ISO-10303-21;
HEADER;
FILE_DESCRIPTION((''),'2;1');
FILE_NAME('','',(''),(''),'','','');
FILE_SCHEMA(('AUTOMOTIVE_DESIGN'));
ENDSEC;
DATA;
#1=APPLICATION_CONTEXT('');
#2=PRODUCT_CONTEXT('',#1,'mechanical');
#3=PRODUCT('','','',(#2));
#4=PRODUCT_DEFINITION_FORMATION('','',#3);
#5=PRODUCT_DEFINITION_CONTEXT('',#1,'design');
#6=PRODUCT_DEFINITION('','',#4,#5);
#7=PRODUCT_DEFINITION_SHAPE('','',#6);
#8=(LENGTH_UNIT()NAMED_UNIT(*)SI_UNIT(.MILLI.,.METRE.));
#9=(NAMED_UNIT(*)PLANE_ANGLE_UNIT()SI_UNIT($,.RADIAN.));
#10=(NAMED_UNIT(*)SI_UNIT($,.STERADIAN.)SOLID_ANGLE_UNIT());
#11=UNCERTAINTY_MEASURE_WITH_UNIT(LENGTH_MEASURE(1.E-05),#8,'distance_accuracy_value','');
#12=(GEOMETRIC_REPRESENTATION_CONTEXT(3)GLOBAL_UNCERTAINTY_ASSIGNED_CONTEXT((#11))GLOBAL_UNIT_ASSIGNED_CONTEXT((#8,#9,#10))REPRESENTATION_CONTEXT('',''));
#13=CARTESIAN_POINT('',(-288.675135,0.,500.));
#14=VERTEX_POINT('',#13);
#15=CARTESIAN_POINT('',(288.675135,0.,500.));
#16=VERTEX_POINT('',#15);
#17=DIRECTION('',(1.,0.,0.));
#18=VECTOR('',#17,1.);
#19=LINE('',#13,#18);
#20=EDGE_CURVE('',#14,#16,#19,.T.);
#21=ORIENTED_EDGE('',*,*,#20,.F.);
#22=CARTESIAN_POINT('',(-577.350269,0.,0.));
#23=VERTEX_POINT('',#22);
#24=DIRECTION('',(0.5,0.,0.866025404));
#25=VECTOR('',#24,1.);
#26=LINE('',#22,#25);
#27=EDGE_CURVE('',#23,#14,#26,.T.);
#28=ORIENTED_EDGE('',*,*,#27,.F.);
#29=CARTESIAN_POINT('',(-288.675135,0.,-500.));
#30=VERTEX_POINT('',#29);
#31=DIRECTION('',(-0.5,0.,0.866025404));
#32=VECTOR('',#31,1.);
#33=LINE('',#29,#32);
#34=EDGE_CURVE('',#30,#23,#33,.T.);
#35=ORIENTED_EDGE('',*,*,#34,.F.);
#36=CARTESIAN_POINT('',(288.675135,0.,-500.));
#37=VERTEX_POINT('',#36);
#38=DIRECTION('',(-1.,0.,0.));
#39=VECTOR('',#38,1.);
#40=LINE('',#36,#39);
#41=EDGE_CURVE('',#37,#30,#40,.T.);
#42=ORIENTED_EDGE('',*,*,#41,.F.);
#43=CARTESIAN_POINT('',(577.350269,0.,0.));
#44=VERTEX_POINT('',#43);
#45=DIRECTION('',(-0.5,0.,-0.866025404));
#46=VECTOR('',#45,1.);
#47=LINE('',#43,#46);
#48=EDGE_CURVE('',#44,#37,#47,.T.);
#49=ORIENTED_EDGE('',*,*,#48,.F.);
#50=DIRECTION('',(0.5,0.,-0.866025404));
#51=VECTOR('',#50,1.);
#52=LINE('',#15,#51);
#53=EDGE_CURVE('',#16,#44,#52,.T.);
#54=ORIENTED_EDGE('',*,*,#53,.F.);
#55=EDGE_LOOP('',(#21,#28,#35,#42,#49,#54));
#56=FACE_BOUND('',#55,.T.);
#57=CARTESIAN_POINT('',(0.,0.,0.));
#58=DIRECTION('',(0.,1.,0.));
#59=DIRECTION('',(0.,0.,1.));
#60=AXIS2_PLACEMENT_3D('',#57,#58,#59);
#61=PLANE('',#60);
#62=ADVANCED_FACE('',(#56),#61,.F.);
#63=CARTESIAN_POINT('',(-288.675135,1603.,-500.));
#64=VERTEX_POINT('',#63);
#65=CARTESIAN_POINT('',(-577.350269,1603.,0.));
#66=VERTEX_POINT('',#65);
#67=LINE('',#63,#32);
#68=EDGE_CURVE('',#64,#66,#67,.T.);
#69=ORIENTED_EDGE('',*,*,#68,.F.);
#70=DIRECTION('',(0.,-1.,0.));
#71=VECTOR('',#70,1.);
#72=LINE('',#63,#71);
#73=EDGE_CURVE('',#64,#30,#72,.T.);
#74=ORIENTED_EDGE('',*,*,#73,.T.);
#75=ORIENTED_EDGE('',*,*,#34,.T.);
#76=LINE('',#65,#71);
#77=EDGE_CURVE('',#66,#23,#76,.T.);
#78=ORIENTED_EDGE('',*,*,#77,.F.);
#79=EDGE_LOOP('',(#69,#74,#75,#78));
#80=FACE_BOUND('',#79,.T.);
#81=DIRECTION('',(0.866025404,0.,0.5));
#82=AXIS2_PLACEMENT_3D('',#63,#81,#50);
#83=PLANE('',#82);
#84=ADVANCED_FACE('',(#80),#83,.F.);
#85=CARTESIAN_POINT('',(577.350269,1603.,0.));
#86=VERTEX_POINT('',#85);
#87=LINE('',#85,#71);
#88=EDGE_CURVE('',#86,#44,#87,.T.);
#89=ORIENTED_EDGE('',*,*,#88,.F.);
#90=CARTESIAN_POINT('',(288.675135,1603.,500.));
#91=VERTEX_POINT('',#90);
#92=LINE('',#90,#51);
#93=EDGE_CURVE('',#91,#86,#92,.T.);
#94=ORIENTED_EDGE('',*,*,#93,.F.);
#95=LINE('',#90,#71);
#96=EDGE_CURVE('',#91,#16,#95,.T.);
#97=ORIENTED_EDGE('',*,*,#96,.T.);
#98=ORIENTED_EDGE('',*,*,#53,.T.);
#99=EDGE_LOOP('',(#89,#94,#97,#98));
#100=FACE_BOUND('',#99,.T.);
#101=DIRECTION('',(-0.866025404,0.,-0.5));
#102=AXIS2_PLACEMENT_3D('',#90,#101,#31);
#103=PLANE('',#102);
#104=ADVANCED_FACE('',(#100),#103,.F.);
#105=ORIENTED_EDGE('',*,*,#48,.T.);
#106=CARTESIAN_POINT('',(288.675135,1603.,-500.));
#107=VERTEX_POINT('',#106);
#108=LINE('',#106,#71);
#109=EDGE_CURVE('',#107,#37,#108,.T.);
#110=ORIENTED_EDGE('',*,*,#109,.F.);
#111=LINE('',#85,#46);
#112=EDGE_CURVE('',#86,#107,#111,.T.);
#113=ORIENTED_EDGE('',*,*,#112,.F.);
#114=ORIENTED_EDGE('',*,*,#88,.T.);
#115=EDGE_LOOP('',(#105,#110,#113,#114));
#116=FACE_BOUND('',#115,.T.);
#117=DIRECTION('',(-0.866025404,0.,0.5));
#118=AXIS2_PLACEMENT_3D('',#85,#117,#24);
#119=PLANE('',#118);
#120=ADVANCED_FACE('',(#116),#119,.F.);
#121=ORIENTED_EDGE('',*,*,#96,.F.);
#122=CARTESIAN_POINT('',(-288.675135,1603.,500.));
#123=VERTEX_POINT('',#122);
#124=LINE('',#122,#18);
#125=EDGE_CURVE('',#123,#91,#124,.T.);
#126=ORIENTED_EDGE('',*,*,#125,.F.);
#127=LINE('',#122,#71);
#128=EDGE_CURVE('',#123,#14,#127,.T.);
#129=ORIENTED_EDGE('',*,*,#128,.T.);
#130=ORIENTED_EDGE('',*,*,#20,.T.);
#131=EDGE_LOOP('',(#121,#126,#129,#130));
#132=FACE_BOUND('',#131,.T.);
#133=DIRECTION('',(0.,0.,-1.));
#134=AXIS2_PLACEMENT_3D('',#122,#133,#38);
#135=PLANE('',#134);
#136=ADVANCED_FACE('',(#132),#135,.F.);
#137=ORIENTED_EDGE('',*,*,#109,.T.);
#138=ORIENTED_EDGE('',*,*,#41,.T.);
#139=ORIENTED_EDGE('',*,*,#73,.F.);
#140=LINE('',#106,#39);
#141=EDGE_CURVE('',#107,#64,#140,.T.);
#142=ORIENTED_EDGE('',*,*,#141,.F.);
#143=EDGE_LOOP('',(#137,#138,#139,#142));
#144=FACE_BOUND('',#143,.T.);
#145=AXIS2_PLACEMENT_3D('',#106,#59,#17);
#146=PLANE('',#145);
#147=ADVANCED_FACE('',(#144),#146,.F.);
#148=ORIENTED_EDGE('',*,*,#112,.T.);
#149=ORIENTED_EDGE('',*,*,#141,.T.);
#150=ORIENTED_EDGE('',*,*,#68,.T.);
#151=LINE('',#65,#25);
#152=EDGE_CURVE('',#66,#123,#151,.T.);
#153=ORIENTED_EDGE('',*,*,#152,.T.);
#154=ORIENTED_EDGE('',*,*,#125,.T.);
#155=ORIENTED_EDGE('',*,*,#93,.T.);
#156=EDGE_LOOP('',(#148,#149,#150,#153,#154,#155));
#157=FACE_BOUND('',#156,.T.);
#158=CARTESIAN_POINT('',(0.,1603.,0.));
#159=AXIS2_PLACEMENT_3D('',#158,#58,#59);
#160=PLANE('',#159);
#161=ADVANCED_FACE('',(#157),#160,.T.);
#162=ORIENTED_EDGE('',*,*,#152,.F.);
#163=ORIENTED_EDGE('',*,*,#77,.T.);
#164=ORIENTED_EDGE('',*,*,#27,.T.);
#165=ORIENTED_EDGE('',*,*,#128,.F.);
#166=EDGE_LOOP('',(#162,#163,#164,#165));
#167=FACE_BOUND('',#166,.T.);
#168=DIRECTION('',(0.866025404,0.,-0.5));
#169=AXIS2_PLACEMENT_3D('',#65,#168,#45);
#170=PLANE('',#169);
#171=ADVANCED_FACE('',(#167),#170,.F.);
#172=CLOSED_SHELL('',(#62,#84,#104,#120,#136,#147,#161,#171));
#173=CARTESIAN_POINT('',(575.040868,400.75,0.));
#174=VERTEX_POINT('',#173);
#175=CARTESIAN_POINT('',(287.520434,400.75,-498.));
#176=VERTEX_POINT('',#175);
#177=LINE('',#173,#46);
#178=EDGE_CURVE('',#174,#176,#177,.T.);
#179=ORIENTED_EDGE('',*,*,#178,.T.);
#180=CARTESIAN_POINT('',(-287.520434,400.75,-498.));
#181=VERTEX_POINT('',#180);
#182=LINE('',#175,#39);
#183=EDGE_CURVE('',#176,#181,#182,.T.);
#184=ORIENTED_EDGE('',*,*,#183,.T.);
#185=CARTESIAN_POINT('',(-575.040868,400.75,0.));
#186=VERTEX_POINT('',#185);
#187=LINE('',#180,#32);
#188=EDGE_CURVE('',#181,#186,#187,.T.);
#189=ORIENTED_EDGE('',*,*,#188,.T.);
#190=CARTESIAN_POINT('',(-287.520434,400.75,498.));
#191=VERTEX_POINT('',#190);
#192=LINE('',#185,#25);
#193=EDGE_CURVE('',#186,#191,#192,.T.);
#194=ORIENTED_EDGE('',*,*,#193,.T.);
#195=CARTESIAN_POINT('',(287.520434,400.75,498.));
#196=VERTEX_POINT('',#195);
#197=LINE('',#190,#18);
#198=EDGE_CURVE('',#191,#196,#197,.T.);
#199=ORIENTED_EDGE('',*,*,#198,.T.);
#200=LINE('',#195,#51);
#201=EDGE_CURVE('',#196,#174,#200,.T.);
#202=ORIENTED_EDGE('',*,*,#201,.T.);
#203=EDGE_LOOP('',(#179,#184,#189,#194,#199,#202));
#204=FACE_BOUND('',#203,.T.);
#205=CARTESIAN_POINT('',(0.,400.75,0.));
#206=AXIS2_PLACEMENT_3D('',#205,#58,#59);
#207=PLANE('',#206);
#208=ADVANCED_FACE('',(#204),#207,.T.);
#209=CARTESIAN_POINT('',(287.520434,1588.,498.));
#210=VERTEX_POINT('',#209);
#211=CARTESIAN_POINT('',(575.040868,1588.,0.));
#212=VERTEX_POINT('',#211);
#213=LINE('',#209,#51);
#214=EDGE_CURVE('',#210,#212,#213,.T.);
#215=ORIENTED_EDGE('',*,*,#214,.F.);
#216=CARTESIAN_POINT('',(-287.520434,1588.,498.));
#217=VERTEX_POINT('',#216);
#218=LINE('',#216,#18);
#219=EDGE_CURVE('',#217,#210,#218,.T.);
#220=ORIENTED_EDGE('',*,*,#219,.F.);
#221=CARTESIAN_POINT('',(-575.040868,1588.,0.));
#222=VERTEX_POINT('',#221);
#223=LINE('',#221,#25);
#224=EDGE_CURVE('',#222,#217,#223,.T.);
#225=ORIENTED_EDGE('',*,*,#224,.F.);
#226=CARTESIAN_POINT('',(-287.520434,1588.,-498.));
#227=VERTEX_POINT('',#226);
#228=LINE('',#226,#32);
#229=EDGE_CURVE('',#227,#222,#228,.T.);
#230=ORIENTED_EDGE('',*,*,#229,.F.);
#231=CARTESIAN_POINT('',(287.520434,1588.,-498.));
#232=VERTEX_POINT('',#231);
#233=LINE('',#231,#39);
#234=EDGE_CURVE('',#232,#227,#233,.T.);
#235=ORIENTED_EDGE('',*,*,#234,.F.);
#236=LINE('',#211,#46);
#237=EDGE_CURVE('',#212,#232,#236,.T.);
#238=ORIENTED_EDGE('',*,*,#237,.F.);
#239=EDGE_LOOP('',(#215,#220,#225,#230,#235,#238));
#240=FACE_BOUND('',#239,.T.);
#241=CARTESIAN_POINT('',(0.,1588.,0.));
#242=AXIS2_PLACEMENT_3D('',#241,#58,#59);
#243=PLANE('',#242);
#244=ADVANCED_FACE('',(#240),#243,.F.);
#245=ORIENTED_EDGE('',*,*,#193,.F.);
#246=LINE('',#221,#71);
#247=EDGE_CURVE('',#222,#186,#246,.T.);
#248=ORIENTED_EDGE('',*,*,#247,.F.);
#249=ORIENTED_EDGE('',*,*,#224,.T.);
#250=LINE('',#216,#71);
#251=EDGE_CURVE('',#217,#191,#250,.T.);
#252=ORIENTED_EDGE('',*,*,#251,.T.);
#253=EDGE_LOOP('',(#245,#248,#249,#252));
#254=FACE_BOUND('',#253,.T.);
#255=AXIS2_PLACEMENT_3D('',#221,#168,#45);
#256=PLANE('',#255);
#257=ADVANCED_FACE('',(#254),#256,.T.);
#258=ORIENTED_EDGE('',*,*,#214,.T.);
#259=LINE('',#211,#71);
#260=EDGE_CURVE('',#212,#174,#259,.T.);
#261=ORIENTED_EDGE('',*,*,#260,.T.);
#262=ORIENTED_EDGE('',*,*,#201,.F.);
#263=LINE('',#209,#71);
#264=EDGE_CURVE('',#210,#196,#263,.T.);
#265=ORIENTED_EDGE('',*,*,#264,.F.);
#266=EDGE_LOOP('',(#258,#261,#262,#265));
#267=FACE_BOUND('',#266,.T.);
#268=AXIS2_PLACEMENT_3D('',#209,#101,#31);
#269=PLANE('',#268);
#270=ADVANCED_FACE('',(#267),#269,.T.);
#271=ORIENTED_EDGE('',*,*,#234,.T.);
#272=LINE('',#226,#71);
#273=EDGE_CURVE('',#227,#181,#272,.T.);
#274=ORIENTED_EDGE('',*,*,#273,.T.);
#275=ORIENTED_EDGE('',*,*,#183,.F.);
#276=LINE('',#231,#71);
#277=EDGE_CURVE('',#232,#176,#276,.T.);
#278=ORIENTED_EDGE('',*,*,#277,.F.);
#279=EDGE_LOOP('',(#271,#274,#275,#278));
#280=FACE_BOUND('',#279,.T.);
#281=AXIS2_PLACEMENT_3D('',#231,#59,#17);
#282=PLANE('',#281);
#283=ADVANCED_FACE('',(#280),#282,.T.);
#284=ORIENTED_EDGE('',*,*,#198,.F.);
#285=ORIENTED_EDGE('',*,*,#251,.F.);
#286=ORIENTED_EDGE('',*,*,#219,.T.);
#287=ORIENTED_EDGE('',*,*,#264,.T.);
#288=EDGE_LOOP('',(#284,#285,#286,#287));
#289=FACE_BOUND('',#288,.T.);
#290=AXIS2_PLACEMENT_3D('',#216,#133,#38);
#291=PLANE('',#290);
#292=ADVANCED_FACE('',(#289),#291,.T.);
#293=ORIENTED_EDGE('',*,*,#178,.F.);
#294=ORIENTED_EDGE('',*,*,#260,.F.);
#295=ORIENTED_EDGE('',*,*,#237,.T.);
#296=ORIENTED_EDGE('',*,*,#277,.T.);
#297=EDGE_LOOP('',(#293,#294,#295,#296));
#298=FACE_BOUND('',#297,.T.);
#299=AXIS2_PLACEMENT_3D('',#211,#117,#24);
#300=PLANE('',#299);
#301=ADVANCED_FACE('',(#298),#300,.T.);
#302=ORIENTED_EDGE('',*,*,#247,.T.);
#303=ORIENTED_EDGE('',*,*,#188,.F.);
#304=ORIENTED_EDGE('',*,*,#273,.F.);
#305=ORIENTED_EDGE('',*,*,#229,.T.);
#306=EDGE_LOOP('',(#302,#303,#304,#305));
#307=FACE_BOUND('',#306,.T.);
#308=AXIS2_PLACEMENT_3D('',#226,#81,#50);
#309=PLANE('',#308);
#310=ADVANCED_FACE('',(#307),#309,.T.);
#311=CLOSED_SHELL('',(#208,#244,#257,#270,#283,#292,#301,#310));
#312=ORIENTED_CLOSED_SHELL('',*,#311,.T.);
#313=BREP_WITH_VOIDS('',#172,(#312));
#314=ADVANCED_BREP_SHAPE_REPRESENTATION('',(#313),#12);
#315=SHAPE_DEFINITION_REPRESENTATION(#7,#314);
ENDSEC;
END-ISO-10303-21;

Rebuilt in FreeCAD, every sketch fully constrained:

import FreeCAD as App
import Part
import Sketcher

V = App.Vector
Q = App.Units.Quantity

doc = App.newDocument("Part")
body = doc.addObject("PartDesign::Body", "Body")

sketch1 = body.newObject("Sketcher::SketchObject", "Sketch")
sketch1.AttachmentSupport = (doc.getObject("XZ_Plane"), [""])
sketch1.MapMode = "FlatFace"
sketch1.addGeometry(Part.LineSegment(V(577.350269, 0, 0), V(288.675135, -500, 0)), False)
sketch1.addGeometry(Part.LineSegment(V(288.675135, -500, 0), V(-288.675135, -500, 0)), False)
sketch1.addGeometry(Part.LineSegment(V(-288.675135, -500, 0), V(-577.350269, 0, 0)), False)
sketch1.addGeometry(Part.LineSegment(V(-577.350269, 0, 0), V(-288.675135, 500, 0)), False)
sketch1.addGeometry(Part.LineSegment(V(-288.675135, 500, 0), V(288.675135, 500, 0)), False)
sketch1.addGeometry(Part.LineSegment(V(288.675135, 500, 0), V(577.350269, 0, 0)), False)
sketch1.addConstraint(Sketcher.Constraint("Coincident", 0, 2, 1, 1))
sketch1.addConstraint(Sketcher.Constraint("Coincident", 1, 2, 2, 1))
sketch1.addConstraint(Sketcher.Constraint("Coincident", 2, 2, 3, 1))
sketch1.addConstraint(Sketcher.Constraint("Coincident", 3, 2, 4, 1))
sketch1.addConstraint(Sketcher.Constraint("Coincident", 4, 2, 5, 1))
sketch1.addConstraint(Sketcher.Constraint("Coincident", 5, 2, 0, 1))
sketch1.addConstraint(Sketcher.Constraint("Horizontal", 1))
sketch1.addConstraint(Sketcher.Constraint("Horizontal", 4))
sketch1.addConstraint(Sketcher.Constraint("Symmetric", 0, 2, 3, 2, -1, 1))
sketch1.addConstraint(Sketcher.Constraint("Symmetric", 2, 2, 5, 2, -1, 1))
sketch1.addConstraint(Sketcher.Constraint("PointOnObject", 2, 2, -1))
sketch1.addConstraint(Sketcher.Constraint("Parallel", 2, 5))
sketch1.addConstraint(Sketcher.Constraint("Vertical", 1, 2, 3, 2))
sketch1.addConstraint(Sketcher.Constraint("Angle", 0, Q("-120 deg")))
sketch1.addConstraint(Sketcher.Constraint("DistanceY", 0, 2, -1, 1, Q("500 mm")))
sketch1.addConstraint(Sketcher.Constraint("DistanceX", 1, 2, 1, 1, Q("577.350269 mm")))
pad1 = body.newObject("PartDesign::Pad", "Pad")
pad1.Profile = sketch1
pad1.Length = 1603
pad1.Reversed = True

sketch2 = body.newObject("Sketcher::SketchObject", "Sketch001")
sketch2.AttachmentSupport = (doc.getObject("XZ_Plane"), [""])
sketch2.MapMode = "FlatFace"
sketch2.AttachmentOffset = App.Placement(V(0, 0, -400.75), App.Rotation())
sketch2.addGeometry(Part.LineSegment(V(575.040868, 0, 0), V(287.520434, -498, 0)), False)
sketch2.addGeometry(Part.LineSegment(V(287.520434, -498, 0), V(-287.520434, -498, 0)), False)
sketch2.addGeometry(Part.LineSegment(V(-287.520434, -498, 0), V(-575.040868, 0, 0)), False)
sketch2.addGeometry(Part.LineSegment(V(-575.040868, 0, 0), V(-287.520434, 498, 0)), False)
sketch2.addGeometry(Part.LineSegment(V(-287.520434, 498, 0), V(287.520434, 498, 0)), False)
sketch2.addGeometry(Part.LineSegment(V(287.520434, 498, 0), V(575.040868, 0, 0)), False)
sketch2.addConstraint(Sketcher.Constraint("Coincident", 0, 2, 1, 1))
sketch2.addConstraint(Sketcher.Constraint("Coincident", 1, 2, 2, 1))
sketch2.addConstraint(Sketcher.Constraint("Coincident", 2, 2, 3, 1))
sketch2.addConstraint(Sketcher.Constraint("Coincident", 3, 2, 4, 1))
sketch2.addConstraint(Sketcher.Constraint("Coincident", 4, 2, 5, 1))
sketch2.addConstraint(Sketcher.Constraint("Coincident", 5, 2, 0, 1))
sketch2.addConstraint(Sketcher.Constraint("Horizontal", 1))
sketch2.addConstraint(Sketcher.Constraint("Horizontal", 4))
sketch2.addConstraint(Sketcher.Constraint("Symmetric", 0, 2, 3, 2, -1, 1))
sketch2.addConstraint(Sketcher.Constraint("Symmetric", 2, 2, 5, 2, -1, 1))
sketch2.addConstraint(Sketcher.Constraint("PointOnObject", 2, 2, -1))
sketch2.addConstraint(Sketcher.Constraint("Parallel", 2, 5))
sketch2.addConstraint(Sketcher.Constraint("Vertical", 1, 2, 3, 2))
sketch2.addConstraint(Sketcher.Constraint("Angle", 0, Q("-120 deg")))
sketch2.addConstraint(Sketcher.Constraint("DistanceY", 0, 2, -1, 1, Q("498 mm")))
sketch2.addConstraint(Sketcher.Constraint("DistanceX", 1, 2, 1, 1, Q("575.040868 mm")))
pocket1 = body.newObject("PartDesign::Pocket", "Pocket")
pocket1.Profile = sketch2
pocket1.Length = 1187.25

doc.recompute()
